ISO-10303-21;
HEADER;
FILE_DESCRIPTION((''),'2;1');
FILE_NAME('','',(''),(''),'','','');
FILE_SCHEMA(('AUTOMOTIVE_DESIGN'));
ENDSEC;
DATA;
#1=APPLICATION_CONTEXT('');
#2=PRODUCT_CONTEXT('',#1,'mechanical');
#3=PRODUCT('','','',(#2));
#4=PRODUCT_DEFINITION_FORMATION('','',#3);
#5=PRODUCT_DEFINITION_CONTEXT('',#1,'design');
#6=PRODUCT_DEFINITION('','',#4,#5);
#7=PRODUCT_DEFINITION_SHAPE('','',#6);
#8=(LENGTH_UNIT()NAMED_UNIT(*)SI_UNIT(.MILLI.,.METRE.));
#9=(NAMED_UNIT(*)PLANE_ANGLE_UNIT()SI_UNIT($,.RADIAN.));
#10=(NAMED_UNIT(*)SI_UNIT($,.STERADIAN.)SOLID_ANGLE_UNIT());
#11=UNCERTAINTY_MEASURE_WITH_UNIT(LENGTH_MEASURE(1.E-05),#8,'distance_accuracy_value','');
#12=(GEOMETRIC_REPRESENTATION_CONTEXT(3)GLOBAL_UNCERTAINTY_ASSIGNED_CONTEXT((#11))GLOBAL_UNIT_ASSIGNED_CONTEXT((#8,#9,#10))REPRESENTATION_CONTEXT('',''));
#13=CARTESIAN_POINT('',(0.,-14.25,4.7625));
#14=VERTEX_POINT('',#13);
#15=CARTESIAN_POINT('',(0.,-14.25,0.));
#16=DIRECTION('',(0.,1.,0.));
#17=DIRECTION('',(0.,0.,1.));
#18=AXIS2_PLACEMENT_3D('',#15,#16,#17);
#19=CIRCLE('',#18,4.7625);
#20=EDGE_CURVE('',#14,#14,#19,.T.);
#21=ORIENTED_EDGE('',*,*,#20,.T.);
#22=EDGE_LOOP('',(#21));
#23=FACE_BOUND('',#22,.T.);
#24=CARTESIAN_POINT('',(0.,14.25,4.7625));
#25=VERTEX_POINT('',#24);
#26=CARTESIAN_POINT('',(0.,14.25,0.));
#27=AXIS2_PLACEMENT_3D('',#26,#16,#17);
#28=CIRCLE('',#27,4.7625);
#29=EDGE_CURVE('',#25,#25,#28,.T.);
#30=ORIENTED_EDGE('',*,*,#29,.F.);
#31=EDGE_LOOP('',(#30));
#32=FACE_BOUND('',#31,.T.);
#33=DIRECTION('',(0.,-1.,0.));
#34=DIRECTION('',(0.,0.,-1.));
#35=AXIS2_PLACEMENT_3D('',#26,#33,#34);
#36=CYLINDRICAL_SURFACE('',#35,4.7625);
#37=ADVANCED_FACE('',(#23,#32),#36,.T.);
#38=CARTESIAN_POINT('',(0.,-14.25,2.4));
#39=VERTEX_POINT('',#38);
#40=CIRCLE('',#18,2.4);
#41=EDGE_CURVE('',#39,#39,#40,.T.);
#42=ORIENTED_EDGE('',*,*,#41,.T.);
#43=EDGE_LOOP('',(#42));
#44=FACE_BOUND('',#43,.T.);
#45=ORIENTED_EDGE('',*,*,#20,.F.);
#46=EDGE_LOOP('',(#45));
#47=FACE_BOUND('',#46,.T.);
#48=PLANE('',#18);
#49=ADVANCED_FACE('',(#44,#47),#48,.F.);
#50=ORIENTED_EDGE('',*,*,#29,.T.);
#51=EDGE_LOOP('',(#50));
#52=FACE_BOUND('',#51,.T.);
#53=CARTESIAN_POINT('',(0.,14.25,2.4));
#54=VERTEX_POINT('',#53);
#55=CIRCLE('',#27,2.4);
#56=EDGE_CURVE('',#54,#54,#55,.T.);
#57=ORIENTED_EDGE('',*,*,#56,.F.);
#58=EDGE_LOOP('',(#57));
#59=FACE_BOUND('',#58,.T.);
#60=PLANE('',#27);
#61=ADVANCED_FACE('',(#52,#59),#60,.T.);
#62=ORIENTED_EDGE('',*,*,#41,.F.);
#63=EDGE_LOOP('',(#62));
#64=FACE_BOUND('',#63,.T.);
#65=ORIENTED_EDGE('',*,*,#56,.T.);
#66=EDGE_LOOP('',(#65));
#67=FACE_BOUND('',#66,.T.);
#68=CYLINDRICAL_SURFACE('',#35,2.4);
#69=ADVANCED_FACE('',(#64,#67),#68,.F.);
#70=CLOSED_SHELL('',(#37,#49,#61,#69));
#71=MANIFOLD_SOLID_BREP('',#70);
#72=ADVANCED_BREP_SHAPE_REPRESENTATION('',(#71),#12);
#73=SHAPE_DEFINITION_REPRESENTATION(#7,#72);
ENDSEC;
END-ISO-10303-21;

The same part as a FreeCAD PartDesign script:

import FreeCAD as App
import Part
import Sketcher
from FreeCAD import Vector

doc = App.newDocument("Part")
body = doc.addObject("PartDesign::Body", "Body")

# Sketch on XZ plane
sketch1 = body.newObject("Sketcher::SketchObject", "Sketch")
sketch1.AttachmentSupport = (doc.getObject("XZ_Plane"), [""])
sketch1.MapMode = "FlatFace"
sketch1.addGeometry([
    Part.Circle(Vector(0, 0, 0), Vector(0, 0, 1), 4.7625),
    Part.Circle(Vector(0, 0, 0), Vector(0, 0, 1), 2.4),
], False)
sketch1.addConstraint([
    Sketcher.Constraint("Coincident", 0, 3, -1, 1),
    Sketcher.Constraint("Coincident", 1, 3, -1, 1),
    Sketcher.Constraint("Diameter", 1, 4.8),
    Sketcher.Constraint("Diameter", 0, 9.525),
])
pad1 = body.newObject("PartDesign::Pad", "Pad")
pad1.Profile = sketch1
pad1.Length = 28.5
pad1.Midplane = True

doc.recompute()
